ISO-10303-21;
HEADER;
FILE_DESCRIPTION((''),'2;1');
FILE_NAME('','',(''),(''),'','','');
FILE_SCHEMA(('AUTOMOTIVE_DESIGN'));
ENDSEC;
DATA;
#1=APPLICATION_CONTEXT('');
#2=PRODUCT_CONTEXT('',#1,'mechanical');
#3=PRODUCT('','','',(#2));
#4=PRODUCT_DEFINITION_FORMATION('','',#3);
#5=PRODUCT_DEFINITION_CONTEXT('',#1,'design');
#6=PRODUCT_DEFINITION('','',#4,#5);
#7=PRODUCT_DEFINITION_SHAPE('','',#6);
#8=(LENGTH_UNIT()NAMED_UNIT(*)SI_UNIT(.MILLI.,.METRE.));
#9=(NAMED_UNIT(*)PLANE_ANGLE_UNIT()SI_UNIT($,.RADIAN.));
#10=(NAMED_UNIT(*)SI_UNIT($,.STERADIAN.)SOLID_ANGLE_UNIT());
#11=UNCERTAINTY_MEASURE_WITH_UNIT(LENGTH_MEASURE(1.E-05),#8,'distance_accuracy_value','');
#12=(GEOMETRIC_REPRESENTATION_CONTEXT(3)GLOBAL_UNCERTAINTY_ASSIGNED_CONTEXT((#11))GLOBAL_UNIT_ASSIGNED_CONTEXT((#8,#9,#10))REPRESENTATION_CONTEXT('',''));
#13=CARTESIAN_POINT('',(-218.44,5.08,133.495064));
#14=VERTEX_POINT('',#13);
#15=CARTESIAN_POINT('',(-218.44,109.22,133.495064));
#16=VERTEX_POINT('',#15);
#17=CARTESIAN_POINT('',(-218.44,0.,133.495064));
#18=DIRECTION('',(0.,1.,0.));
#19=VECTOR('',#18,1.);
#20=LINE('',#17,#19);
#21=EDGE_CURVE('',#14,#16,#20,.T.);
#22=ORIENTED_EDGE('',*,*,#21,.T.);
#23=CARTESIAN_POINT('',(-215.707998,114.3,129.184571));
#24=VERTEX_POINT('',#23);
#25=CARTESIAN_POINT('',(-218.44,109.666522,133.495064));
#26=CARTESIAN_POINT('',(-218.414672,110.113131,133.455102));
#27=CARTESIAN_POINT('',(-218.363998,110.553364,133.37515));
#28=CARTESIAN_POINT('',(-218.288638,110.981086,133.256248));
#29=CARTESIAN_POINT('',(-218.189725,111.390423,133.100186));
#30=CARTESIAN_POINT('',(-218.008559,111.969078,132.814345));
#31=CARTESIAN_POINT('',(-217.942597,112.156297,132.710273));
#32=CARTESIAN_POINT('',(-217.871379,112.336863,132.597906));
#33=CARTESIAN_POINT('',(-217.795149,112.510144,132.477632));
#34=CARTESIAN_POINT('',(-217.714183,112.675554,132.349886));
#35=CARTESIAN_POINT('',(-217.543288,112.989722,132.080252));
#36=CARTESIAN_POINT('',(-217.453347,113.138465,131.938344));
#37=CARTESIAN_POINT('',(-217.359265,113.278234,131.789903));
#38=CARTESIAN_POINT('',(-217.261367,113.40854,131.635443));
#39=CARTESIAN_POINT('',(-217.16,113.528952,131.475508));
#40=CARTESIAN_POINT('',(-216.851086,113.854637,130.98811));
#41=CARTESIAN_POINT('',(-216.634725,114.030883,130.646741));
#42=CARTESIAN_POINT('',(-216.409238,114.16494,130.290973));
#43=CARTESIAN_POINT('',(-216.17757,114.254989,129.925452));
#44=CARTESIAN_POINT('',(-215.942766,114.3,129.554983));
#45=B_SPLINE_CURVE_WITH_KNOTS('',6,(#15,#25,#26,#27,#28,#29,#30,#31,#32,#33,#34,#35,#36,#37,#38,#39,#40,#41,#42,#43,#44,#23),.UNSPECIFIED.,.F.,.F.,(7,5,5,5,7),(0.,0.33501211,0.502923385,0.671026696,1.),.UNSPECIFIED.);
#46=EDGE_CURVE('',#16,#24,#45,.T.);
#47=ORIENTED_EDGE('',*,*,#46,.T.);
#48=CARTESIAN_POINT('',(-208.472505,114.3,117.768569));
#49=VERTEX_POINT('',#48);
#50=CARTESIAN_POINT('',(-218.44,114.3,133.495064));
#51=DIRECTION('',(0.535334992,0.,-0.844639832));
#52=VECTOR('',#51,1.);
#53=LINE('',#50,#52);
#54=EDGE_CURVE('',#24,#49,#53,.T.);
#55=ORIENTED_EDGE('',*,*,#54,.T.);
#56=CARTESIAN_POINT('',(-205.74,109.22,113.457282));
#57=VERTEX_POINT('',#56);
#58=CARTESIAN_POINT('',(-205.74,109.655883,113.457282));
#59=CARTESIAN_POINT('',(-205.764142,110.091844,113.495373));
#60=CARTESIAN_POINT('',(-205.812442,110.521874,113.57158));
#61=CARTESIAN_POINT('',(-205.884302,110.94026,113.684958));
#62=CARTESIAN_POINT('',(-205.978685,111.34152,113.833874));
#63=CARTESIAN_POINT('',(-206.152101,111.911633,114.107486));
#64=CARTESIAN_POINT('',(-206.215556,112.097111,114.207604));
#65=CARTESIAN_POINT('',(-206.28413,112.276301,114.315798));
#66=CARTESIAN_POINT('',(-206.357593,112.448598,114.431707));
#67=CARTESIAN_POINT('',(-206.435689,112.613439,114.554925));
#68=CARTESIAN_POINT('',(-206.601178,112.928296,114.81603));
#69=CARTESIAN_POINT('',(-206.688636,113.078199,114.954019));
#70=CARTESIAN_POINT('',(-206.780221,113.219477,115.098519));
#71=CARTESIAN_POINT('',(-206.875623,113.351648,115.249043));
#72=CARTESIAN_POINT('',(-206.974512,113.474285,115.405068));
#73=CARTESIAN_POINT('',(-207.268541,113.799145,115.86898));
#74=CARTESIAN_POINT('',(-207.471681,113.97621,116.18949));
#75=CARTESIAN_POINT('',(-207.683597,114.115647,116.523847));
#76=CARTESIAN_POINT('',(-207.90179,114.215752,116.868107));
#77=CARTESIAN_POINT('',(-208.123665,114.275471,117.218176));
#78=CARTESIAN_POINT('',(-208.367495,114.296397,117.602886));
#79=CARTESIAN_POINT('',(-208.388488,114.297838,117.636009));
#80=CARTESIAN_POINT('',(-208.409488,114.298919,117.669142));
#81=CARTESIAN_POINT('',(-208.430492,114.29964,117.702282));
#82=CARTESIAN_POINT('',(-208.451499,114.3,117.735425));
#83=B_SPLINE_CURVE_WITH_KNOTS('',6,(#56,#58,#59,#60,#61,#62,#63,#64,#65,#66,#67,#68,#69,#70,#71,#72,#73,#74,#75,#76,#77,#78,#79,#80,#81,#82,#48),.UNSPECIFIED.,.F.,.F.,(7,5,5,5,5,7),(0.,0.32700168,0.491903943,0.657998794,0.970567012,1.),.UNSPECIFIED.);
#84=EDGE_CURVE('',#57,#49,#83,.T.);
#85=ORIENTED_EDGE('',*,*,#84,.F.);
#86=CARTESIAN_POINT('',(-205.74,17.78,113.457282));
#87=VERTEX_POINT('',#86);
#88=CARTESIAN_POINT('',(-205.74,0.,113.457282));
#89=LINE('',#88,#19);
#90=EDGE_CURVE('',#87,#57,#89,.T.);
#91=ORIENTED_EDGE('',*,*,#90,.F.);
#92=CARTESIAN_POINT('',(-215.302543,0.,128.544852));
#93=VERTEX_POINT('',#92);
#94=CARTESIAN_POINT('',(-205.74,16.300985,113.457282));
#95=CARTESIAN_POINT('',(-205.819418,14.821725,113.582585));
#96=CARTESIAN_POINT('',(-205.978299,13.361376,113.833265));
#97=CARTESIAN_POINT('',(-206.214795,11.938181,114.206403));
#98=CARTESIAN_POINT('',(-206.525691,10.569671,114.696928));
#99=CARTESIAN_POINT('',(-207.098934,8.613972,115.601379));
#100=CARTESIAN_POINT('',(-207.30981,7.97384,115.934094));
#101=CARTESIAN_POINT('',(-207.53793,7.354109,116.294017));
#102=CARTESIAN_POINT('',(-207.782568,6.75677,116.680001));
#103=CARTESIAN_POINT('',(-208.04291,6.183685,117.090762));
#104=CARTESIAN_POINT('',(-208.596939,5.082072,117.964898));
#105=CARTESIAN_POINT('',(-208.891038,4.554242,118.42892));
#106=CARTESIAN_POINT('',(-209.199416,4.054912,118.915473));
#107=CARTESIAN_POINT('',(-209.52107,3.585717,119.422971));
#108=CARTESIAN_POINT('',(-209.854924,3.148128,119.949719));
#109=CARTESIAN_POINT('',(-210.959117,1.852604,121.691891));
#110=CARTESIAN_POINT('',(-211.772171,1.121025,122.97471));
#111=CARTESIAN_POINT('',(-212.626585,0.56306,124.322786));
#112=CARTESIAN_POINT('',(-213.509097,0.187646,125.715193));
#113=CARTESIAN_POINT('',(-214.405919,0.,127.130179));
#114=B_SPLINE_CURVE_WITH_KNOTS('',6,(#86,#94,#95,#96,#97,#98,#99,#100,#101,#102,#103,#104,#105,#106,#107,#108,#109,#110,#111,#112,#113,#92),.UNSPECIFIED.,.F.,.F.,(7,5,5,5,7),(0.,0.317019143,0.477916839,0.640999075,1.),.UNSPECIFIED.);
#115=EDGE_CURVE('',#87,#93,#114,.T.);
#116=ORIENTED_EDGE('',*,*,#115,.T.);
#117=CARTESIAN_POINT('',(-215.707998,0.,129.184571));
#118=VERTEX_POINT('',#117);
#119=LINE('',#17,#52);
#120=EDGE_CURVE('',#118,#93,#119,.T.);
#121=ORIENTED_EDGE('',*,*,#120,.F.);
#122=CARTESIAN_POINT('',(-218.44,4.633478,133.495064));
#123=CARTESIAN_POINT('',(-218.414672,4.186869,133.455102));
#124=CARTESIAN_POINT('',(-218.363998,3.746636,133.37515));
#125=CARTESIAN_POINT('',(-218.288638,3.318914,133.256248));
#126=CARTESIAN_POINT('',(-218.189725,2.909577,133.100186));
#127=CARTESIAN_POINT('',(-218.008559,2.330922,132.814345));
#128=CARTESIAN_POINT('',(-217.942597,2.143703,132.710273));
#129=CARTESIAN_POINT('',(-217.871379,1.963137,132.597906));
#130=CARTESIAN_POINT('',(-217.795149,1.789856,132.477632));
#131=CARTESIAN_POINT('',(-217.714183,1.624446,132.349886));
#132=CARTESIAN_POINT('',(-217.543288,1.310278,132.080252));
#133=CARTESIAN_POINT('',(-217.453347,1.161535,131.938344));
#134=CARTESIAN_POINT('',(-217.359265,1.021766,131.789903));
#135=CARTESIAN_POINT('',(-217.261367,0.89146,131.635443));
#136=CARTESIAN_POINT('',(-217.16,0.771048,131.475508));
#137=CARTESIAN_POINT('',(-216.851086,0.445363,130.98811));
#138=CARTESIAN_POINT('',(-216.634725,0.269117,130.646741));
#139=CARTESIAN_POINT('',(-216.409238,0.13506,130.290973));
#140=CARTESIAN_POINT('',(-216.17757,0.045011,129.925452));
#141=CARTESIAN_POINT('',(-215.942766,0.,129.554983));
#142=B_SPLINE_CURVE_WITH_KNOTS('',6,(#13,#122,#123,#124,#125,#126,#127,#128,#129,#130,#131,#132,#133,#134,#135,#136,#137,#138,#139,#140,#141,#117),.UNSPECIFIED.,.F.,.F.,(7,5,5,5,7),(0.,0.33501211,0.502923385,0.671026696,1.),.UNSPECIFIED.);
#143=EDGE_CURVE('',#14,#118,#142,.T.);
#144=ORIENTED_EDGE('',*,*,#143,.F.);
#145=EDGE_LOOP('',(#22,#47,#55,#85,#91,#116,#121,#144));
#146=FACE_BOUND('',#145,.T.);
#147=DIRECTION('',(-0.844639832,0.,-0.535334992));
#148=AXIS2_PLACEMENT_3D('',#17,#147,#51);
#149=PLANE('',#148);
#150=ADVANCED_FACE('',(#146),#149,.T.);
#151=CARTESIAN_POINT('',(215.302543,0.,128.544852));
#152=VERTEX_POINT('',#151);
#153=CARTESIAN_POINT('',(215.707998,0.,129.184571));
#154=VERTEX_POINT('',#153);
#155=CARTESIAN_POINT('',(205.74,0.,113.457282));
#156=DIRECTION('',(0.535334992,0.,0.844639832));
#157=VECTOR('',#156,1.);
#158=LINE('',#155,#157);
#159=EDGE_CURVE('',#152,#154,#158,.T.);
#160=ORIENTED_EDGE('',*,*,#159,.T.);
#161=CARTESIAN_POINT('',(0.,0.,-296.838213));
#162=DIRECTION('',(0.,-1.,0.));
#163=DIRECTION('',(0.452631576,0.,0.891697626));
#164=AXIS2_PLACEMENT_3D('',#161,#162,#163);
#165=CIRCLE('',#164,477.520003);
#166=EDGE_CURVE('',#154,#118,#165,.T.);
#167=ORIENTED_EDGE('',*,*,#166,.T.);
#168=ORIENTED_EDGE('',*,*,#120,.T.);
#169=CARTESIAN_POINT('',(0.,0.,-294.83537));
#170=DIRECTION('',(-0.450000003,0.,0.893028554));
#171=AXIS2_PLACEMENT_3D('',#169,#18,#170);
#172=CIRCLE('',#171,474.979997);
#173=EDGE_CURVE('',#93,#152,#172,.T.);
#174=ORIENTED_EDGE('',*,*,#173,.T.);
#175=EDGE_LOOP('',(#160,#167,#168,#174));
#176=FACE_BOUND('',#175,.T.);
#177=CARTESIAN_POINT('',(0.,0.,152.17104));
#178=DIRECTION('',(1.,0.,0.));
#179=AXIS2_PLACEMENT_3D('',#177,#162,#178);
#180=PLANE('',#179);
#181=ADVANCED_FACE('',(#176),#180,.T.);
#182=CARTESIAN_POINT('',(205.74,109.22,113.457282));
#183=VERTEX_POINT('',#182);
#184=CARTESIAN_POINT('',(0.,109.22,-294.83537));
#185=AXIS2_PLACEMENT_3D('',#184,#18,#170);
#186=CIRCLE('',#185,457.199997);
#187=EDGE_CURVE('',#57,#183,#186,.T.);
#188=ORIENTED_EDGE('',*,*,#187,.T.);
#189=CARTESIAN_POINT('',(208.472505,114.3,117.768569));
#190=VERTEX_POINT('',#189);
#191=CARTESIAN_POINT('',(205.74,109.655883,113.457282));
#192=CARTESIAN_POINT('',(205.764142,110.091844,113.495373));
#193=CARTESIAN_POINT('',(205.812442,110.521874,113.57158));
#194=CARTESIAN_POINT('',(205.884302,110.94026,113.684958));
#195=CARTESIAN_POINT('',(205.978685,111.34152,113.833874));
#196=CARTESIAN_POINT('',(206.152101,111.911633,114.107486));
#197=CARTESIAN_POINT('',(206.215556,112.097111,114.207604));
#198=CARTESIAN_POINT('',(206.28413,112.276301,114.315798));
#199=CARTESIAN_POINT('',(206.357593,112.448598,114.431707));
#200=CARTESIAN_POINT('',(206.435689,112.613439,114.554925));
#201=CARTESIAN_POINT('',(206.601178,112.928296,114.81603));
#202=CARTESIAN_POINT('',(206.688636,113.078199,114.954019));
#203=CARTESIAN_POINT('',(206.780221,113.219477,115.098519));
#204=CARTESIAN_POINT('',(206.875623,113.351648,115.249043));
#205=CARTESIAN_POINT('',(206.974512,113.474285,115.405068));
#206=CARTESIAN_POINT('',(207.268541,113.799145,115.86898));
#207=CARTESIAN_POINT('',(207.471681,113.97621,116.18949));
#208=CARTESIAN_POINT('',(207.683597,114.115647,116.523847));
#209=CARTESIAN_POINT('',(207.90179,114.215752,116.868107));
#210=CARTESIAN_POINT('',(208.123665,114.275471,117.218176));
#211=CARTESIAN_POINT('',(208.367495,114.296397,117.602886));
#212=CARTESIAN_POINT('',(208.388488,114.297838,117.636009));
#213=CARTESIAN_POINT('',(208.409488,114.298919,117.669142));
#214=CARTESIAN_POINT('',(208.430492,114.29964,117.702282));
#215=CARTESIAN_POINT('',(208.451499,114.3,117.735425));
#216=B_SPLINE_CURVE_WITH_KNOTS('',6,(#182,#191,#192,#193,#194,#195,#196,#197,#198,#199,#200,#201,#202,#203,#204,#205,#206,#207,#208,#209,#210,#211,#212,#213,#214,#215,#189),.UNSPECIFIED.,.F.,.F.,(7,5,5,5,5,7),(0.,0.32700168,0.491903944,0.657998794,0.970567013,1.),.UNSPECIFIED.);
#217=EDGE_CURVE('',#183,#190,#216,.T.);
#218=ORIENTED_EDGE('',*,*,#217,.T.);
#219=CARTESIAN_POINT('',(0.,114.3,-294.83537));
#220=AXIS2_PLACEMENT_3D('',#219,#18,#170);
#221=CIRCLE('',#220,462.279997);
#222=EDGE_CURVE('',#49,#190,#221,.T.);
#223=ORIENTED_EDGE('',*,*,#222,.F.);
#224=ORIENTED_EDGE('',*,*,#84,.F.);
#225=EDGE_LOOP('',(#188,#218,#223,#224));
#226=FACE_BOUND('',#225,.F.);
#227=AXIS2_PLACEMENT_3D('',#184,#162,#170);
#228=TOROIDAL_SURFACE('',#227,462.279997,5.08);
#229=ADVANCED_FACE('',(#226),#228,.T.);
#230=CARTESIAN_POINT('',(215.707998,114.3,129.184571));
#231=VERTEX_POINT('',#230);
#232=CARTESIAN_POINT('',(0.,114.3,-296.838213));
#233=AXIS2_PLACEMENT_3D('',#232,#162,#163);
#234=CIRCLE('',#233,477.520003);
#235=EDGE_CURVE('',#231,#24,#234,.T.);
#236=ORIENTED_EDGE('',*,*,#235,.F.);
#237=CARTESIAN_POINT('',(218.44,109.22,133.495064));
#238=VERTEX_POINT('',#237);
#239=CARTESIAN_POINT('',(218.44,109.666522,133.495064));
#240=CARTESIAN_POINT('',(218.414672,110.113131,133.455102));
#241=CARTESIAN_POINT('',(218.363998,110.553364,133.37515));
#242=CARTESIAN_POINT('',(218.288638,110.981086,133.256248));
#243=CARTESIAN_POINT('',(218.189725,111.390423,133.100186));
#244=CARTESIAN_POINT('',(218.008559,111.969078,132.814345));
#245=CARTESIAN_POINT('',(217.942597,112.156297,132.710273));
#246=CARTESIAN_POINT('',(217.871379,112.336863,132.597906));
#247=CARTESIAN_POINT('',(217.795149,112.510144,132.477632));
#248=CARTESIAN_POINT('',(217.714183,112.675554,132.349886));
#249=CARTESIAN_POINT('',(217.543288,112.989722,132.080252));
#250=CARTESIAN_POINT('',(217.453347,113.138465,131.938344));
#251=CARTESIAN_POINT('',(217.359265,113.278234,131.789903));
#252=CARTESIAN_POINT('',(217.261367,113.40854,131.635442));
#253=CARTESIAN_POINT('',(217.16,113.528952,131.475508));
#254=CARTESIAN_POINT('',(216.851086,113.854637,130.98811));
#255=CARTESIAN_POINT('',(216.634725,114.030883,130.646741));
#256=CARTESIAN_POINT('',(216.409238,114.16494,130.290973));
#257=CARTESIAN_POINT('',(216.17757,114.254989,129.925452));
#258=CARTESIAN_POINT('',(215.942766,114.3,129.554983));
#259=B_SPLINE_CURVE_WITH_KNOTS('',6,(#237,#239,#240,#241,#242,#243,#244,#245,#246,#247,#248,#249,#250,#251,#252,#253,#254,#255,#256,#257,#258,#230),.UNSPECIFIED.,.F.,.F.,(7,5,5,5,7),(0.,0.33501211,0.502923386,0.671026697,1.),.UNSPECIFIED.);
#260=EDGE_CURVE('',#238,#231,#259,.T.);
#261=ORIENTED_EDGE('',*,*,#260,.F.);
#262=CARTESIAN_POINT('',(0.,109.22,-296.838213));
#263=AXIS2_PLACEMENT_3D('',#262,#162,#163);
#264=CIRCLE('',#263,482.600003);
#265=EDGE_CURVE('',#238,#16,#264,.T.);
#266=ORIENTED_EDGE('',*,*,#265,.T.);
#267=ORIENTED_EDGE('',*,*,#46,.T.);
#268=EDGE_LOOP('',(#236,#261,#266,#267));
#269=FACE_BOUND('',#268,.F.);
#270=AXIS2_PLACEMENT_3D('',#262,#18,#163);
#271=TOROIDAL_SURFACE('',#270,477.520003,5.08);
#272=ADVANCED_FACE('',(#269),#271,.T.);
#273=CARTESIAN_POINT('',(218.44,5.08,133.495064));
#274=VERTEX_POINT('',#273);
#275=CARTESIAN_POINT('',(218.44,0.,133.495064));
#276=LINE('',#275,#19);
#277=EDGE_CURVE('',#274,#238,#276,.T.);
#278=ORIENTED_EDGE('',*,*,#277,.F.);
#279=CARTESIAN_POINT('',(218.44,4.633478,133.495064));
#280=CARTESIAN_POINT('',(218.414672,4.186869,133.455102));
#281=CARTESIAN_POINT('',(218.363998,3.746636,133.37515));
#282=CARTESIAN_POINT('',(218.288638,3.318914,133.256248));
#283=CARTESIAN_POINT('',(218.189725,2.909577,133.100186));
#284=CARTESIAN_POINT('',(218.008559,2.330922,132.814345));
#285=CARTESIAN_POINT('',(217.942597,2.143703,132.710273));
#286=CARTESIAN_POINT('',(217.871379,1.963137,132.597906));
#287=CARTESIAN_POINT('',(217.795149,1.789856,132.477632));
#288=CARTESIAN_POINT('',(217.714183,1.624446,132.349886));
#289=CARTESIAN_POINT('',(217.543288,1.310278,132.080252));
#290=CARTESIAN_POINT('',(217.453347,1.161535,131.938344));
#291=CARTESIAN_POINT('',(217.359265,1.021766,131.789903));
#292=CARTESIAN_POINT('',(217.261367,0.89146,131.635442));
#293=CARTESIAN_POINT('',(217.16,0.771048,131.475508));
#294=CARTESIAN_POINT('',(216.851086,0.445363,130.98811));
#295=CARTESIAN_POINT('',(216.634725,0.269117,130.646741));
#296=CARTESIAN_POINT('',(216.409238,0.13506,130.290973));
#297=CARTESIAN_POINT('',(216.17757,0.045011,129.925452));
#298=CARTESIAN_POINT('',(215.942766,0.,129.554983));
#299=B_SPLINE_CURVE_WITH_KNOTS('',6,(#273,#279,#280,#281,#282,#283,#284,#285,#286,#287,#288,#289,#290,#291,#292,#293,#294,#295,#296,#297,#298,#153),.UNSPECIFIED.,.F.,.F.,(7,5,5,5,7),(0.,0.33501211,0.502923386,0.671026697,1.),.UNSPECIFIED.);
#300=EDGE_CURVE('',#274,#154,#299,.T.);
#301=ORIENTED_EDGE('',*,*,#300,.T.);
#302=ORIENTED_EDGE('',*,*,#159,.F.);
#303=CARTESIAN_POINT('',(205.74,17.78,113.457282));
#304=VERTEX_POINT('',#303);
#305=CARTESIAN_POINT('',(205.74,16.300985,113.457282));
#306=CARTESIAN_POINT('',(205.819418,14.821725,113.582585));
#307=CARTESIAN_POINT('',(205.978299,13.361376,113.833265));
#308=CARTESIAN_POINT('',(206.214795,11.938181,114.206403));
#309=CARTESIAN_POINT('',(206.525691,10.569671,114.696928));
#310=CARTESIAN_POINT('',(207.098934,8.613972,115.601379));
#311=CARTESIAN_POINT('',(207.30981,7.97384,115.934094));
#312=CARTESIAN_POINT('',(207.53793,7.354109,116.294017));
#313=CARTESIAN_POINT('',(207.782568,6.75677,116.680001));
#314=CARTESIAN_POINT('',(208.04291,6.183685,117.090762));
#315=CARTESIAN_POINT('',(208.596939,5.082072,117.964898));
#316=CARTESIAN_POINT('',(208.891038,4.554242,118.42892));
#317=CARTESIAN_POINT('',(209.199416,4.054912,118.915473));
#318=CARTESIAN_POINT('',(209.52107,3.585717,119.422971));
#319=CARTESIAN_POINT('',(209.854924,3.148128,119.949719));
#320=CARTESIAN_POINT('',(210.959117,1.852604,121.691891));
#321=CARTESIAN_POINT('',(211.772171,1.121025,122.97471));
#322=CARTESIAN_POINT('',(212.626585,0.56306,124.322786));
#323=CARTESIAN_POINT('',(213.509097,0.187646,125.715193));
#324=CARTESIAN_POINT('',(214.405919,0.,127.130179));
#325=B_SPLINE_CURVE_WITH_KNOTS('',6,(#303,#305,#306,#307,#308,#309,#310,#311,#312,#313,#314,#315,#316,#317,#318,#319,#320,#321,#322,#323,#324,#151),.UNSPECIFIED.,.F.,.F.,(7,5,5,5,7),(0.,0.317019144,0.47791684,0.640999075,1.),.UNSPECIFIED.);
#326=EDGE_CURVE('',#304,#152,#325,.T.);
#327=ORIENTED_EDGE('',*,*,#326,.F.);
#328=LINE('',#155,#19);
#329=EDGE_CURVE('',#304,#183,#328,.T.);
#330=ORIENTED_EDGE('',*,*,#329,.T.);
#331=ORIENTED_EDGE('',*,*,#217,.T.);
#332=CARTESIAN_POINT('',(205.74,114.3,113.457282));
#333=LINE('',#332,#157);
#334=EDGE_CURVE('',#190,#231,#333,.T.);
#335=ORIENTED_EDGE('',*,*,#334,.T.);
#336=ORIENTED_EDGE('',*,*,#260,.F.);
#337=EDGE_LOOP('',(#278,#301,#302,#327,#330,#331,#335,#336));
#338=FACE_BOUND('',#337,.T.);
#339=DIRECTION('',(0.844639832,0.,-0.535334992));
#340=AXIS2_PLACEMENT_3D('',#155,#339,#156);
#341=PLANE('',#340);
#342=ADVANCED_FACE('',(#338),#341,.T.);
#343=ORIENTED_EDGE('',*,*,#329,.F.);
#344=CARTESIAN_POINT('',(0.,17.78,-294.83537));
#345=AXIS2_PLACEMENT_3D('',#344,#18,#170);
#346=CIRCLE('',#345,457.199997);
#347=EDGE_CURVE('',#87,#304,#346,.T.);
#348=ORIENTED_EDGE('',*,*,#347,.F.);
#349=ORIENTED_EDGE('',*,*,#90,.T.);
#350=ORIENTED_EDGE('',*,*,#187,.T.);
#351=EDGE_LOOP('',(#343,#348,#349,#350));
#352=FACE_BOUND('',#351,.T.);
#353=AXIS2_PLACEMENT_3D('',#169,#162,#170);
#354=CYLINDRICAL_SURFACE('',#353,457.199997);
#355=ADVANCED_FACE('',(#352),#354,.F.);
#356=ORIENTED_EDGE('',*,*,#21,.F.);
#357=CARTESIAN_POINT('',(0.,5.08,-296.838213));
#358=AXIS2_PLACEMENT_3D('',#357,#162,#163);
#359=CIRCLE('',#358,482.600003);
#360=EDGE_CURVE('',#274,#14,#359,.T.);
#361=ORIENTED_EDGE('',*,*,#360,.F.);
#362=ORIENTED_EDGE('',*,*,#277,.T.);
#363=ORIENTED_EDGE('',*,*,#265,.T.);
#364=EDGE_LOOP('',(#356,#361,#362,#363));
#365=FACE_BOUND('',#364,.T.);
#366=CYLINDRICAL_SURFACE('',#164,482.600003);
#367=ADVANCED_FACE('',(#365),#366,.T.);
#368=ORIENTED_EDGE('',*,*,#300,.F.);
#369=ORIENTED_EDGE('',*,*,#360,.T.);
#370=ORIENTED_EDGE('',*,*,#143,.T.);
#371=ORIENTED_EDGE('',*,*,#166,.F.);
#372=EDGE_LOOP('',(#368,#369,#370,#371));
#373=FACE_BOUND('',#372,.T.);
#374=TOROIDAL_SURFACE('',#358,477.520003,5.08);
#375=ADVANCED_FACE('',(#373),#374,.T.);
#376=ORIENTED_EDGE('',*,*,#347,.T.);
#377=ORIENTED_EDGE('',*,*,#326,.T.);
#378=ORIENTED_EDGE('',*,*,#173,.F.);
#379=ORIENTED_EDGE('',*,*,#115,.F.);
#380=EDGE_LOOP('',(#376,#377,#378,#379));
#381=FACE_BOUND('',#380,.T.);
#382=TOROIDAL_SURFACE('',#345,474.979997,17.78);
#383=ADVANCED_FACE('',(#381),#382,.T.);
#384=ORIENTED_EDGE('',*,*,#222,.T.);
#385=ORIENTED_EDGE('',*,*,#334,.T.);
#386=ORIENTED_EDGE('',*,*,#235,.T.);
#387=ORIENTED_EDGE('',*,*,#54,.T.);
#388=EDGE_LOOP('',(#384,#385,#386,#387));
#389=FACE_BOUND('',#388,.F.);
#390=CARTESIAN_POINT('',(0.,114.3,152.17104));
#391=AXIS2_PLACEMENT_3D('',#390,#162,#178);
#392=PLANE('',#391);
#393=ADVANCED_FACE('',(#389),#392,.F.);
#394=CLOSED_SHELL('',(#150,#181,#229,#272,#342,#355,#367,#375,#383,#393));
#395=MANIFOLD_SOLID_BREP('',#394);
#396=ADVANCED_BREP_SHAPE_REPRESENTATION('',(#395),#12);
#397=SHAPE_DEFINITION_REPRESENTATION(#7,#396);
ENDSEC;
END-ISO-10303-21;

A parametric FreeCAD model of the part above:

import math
import FreeCAD as App
import Part
import Sketcher
Q = App.Units.Quantity


def edges_at(feature, points):
    """Names of the edges that pass closest to the given points."""
    edges = feature.Shape.Edges
    near = lambda p: min(range(len(edges)), key=lambda i: edges[i].distToShape(Part.Vertex(*p))[0])
    return sorted({f"Edge{near(p) + 1}" for p in points})

doc = App.newDocument("Part")
body = doc.addObject("PartDesign::Body", "Body")

# Sketch on XZ plane
sketch1 = body.newObject("Sketcher::SketchObject", "Sketch")
sketch1.AttachmentSupport = (doc.getObject("XZ_Plane"), [""])
sketch1.MapMode = "FlatFace"
sketch1.addGeometry([
    Part.ArcOfCircle(Part.Circle(App.Vector(0, -296.838213, 0), App.Vector(0, 0, 1), 482.600003), math.radians(63.087351), math.radians(116.912649)),
    Part.LineSegment(App.Vector(-218.44, 133.495064, 0), App.Vector(-205.74, 113.457282, 0)),
    Part.ArcOfCircle(Part.Circle(App.Vector(0, -294.83537, 0), App.Vector(0, 0, 1), 457.199997), math.radians(63.256316), math.radians(116.743684)),
    Part.LineSegment(App.Vector(205.74, 113.457282, 0), App.Vector(218.44, 133.495064, 0)),
], False)
sketch1.addConstraint([
    Sketcher.Constraint("Coincident", 0, 2, 1, 1),
    Sketcher.Constraint("Coincident", 1, 2, 2, 2),
    Sketcher.Constraint("Coincident", 2, 1, 3, 1),
    Sketcher.Constraint("Coincident", 3, 2, 0, 1),
    Sketcher.Constraint("Symmetric", 1, 2, 2, 1, -2),
    Sketcher.Constraint("Symmetric", 0, 2, 3, 2, -2),
    Sketcher.Constraint("Radius", 0, Q("19.0000001 in")),
    Sketcher.Constraint("Radius", 2, Q("17.9999999 in")),
    Sketcher.Constraint("DistanceX", 1, 2, -1, 1, Q("8.1 in")),
    Sketcher.Constraint("DistanceX", -1, 1, 3, 2, Q("8.6 in")),
    Sketcher.Constraint("DistanceY", 2, 3, -1, 1, Q("294.83537 mm")),
    Sketcher.Constraint("DistanceY", 1, 2, 0, 2, Q("20.037782 mm")),
])
pad1 = body.newObject("PartDesign::Pad", "Pad")
pad1.Profile = sketch1
pad1.Length = Q("4.5 in")
pad1.Reversed = True
doc.recompute()

fillet = body.newObject("PartDesign::Fillet", "Fillet")
fillet.Base = (pad1, edges_at(pad1, [(0, 0, 185.762), (0, 114.3, 162.365), (0, 114.3, 185.762)]))
fillet.Radius = Q("0.2 in")
doc.recompute()

fillet2 = body.newObject("PartDesign::Fillet", "Fillet001")
fillet2.Base = (fillet, edges_at(fillet, [(0, 0, 162.365)]))
fillet2.Radius = Q("0.7 in")

doc.recompute()
